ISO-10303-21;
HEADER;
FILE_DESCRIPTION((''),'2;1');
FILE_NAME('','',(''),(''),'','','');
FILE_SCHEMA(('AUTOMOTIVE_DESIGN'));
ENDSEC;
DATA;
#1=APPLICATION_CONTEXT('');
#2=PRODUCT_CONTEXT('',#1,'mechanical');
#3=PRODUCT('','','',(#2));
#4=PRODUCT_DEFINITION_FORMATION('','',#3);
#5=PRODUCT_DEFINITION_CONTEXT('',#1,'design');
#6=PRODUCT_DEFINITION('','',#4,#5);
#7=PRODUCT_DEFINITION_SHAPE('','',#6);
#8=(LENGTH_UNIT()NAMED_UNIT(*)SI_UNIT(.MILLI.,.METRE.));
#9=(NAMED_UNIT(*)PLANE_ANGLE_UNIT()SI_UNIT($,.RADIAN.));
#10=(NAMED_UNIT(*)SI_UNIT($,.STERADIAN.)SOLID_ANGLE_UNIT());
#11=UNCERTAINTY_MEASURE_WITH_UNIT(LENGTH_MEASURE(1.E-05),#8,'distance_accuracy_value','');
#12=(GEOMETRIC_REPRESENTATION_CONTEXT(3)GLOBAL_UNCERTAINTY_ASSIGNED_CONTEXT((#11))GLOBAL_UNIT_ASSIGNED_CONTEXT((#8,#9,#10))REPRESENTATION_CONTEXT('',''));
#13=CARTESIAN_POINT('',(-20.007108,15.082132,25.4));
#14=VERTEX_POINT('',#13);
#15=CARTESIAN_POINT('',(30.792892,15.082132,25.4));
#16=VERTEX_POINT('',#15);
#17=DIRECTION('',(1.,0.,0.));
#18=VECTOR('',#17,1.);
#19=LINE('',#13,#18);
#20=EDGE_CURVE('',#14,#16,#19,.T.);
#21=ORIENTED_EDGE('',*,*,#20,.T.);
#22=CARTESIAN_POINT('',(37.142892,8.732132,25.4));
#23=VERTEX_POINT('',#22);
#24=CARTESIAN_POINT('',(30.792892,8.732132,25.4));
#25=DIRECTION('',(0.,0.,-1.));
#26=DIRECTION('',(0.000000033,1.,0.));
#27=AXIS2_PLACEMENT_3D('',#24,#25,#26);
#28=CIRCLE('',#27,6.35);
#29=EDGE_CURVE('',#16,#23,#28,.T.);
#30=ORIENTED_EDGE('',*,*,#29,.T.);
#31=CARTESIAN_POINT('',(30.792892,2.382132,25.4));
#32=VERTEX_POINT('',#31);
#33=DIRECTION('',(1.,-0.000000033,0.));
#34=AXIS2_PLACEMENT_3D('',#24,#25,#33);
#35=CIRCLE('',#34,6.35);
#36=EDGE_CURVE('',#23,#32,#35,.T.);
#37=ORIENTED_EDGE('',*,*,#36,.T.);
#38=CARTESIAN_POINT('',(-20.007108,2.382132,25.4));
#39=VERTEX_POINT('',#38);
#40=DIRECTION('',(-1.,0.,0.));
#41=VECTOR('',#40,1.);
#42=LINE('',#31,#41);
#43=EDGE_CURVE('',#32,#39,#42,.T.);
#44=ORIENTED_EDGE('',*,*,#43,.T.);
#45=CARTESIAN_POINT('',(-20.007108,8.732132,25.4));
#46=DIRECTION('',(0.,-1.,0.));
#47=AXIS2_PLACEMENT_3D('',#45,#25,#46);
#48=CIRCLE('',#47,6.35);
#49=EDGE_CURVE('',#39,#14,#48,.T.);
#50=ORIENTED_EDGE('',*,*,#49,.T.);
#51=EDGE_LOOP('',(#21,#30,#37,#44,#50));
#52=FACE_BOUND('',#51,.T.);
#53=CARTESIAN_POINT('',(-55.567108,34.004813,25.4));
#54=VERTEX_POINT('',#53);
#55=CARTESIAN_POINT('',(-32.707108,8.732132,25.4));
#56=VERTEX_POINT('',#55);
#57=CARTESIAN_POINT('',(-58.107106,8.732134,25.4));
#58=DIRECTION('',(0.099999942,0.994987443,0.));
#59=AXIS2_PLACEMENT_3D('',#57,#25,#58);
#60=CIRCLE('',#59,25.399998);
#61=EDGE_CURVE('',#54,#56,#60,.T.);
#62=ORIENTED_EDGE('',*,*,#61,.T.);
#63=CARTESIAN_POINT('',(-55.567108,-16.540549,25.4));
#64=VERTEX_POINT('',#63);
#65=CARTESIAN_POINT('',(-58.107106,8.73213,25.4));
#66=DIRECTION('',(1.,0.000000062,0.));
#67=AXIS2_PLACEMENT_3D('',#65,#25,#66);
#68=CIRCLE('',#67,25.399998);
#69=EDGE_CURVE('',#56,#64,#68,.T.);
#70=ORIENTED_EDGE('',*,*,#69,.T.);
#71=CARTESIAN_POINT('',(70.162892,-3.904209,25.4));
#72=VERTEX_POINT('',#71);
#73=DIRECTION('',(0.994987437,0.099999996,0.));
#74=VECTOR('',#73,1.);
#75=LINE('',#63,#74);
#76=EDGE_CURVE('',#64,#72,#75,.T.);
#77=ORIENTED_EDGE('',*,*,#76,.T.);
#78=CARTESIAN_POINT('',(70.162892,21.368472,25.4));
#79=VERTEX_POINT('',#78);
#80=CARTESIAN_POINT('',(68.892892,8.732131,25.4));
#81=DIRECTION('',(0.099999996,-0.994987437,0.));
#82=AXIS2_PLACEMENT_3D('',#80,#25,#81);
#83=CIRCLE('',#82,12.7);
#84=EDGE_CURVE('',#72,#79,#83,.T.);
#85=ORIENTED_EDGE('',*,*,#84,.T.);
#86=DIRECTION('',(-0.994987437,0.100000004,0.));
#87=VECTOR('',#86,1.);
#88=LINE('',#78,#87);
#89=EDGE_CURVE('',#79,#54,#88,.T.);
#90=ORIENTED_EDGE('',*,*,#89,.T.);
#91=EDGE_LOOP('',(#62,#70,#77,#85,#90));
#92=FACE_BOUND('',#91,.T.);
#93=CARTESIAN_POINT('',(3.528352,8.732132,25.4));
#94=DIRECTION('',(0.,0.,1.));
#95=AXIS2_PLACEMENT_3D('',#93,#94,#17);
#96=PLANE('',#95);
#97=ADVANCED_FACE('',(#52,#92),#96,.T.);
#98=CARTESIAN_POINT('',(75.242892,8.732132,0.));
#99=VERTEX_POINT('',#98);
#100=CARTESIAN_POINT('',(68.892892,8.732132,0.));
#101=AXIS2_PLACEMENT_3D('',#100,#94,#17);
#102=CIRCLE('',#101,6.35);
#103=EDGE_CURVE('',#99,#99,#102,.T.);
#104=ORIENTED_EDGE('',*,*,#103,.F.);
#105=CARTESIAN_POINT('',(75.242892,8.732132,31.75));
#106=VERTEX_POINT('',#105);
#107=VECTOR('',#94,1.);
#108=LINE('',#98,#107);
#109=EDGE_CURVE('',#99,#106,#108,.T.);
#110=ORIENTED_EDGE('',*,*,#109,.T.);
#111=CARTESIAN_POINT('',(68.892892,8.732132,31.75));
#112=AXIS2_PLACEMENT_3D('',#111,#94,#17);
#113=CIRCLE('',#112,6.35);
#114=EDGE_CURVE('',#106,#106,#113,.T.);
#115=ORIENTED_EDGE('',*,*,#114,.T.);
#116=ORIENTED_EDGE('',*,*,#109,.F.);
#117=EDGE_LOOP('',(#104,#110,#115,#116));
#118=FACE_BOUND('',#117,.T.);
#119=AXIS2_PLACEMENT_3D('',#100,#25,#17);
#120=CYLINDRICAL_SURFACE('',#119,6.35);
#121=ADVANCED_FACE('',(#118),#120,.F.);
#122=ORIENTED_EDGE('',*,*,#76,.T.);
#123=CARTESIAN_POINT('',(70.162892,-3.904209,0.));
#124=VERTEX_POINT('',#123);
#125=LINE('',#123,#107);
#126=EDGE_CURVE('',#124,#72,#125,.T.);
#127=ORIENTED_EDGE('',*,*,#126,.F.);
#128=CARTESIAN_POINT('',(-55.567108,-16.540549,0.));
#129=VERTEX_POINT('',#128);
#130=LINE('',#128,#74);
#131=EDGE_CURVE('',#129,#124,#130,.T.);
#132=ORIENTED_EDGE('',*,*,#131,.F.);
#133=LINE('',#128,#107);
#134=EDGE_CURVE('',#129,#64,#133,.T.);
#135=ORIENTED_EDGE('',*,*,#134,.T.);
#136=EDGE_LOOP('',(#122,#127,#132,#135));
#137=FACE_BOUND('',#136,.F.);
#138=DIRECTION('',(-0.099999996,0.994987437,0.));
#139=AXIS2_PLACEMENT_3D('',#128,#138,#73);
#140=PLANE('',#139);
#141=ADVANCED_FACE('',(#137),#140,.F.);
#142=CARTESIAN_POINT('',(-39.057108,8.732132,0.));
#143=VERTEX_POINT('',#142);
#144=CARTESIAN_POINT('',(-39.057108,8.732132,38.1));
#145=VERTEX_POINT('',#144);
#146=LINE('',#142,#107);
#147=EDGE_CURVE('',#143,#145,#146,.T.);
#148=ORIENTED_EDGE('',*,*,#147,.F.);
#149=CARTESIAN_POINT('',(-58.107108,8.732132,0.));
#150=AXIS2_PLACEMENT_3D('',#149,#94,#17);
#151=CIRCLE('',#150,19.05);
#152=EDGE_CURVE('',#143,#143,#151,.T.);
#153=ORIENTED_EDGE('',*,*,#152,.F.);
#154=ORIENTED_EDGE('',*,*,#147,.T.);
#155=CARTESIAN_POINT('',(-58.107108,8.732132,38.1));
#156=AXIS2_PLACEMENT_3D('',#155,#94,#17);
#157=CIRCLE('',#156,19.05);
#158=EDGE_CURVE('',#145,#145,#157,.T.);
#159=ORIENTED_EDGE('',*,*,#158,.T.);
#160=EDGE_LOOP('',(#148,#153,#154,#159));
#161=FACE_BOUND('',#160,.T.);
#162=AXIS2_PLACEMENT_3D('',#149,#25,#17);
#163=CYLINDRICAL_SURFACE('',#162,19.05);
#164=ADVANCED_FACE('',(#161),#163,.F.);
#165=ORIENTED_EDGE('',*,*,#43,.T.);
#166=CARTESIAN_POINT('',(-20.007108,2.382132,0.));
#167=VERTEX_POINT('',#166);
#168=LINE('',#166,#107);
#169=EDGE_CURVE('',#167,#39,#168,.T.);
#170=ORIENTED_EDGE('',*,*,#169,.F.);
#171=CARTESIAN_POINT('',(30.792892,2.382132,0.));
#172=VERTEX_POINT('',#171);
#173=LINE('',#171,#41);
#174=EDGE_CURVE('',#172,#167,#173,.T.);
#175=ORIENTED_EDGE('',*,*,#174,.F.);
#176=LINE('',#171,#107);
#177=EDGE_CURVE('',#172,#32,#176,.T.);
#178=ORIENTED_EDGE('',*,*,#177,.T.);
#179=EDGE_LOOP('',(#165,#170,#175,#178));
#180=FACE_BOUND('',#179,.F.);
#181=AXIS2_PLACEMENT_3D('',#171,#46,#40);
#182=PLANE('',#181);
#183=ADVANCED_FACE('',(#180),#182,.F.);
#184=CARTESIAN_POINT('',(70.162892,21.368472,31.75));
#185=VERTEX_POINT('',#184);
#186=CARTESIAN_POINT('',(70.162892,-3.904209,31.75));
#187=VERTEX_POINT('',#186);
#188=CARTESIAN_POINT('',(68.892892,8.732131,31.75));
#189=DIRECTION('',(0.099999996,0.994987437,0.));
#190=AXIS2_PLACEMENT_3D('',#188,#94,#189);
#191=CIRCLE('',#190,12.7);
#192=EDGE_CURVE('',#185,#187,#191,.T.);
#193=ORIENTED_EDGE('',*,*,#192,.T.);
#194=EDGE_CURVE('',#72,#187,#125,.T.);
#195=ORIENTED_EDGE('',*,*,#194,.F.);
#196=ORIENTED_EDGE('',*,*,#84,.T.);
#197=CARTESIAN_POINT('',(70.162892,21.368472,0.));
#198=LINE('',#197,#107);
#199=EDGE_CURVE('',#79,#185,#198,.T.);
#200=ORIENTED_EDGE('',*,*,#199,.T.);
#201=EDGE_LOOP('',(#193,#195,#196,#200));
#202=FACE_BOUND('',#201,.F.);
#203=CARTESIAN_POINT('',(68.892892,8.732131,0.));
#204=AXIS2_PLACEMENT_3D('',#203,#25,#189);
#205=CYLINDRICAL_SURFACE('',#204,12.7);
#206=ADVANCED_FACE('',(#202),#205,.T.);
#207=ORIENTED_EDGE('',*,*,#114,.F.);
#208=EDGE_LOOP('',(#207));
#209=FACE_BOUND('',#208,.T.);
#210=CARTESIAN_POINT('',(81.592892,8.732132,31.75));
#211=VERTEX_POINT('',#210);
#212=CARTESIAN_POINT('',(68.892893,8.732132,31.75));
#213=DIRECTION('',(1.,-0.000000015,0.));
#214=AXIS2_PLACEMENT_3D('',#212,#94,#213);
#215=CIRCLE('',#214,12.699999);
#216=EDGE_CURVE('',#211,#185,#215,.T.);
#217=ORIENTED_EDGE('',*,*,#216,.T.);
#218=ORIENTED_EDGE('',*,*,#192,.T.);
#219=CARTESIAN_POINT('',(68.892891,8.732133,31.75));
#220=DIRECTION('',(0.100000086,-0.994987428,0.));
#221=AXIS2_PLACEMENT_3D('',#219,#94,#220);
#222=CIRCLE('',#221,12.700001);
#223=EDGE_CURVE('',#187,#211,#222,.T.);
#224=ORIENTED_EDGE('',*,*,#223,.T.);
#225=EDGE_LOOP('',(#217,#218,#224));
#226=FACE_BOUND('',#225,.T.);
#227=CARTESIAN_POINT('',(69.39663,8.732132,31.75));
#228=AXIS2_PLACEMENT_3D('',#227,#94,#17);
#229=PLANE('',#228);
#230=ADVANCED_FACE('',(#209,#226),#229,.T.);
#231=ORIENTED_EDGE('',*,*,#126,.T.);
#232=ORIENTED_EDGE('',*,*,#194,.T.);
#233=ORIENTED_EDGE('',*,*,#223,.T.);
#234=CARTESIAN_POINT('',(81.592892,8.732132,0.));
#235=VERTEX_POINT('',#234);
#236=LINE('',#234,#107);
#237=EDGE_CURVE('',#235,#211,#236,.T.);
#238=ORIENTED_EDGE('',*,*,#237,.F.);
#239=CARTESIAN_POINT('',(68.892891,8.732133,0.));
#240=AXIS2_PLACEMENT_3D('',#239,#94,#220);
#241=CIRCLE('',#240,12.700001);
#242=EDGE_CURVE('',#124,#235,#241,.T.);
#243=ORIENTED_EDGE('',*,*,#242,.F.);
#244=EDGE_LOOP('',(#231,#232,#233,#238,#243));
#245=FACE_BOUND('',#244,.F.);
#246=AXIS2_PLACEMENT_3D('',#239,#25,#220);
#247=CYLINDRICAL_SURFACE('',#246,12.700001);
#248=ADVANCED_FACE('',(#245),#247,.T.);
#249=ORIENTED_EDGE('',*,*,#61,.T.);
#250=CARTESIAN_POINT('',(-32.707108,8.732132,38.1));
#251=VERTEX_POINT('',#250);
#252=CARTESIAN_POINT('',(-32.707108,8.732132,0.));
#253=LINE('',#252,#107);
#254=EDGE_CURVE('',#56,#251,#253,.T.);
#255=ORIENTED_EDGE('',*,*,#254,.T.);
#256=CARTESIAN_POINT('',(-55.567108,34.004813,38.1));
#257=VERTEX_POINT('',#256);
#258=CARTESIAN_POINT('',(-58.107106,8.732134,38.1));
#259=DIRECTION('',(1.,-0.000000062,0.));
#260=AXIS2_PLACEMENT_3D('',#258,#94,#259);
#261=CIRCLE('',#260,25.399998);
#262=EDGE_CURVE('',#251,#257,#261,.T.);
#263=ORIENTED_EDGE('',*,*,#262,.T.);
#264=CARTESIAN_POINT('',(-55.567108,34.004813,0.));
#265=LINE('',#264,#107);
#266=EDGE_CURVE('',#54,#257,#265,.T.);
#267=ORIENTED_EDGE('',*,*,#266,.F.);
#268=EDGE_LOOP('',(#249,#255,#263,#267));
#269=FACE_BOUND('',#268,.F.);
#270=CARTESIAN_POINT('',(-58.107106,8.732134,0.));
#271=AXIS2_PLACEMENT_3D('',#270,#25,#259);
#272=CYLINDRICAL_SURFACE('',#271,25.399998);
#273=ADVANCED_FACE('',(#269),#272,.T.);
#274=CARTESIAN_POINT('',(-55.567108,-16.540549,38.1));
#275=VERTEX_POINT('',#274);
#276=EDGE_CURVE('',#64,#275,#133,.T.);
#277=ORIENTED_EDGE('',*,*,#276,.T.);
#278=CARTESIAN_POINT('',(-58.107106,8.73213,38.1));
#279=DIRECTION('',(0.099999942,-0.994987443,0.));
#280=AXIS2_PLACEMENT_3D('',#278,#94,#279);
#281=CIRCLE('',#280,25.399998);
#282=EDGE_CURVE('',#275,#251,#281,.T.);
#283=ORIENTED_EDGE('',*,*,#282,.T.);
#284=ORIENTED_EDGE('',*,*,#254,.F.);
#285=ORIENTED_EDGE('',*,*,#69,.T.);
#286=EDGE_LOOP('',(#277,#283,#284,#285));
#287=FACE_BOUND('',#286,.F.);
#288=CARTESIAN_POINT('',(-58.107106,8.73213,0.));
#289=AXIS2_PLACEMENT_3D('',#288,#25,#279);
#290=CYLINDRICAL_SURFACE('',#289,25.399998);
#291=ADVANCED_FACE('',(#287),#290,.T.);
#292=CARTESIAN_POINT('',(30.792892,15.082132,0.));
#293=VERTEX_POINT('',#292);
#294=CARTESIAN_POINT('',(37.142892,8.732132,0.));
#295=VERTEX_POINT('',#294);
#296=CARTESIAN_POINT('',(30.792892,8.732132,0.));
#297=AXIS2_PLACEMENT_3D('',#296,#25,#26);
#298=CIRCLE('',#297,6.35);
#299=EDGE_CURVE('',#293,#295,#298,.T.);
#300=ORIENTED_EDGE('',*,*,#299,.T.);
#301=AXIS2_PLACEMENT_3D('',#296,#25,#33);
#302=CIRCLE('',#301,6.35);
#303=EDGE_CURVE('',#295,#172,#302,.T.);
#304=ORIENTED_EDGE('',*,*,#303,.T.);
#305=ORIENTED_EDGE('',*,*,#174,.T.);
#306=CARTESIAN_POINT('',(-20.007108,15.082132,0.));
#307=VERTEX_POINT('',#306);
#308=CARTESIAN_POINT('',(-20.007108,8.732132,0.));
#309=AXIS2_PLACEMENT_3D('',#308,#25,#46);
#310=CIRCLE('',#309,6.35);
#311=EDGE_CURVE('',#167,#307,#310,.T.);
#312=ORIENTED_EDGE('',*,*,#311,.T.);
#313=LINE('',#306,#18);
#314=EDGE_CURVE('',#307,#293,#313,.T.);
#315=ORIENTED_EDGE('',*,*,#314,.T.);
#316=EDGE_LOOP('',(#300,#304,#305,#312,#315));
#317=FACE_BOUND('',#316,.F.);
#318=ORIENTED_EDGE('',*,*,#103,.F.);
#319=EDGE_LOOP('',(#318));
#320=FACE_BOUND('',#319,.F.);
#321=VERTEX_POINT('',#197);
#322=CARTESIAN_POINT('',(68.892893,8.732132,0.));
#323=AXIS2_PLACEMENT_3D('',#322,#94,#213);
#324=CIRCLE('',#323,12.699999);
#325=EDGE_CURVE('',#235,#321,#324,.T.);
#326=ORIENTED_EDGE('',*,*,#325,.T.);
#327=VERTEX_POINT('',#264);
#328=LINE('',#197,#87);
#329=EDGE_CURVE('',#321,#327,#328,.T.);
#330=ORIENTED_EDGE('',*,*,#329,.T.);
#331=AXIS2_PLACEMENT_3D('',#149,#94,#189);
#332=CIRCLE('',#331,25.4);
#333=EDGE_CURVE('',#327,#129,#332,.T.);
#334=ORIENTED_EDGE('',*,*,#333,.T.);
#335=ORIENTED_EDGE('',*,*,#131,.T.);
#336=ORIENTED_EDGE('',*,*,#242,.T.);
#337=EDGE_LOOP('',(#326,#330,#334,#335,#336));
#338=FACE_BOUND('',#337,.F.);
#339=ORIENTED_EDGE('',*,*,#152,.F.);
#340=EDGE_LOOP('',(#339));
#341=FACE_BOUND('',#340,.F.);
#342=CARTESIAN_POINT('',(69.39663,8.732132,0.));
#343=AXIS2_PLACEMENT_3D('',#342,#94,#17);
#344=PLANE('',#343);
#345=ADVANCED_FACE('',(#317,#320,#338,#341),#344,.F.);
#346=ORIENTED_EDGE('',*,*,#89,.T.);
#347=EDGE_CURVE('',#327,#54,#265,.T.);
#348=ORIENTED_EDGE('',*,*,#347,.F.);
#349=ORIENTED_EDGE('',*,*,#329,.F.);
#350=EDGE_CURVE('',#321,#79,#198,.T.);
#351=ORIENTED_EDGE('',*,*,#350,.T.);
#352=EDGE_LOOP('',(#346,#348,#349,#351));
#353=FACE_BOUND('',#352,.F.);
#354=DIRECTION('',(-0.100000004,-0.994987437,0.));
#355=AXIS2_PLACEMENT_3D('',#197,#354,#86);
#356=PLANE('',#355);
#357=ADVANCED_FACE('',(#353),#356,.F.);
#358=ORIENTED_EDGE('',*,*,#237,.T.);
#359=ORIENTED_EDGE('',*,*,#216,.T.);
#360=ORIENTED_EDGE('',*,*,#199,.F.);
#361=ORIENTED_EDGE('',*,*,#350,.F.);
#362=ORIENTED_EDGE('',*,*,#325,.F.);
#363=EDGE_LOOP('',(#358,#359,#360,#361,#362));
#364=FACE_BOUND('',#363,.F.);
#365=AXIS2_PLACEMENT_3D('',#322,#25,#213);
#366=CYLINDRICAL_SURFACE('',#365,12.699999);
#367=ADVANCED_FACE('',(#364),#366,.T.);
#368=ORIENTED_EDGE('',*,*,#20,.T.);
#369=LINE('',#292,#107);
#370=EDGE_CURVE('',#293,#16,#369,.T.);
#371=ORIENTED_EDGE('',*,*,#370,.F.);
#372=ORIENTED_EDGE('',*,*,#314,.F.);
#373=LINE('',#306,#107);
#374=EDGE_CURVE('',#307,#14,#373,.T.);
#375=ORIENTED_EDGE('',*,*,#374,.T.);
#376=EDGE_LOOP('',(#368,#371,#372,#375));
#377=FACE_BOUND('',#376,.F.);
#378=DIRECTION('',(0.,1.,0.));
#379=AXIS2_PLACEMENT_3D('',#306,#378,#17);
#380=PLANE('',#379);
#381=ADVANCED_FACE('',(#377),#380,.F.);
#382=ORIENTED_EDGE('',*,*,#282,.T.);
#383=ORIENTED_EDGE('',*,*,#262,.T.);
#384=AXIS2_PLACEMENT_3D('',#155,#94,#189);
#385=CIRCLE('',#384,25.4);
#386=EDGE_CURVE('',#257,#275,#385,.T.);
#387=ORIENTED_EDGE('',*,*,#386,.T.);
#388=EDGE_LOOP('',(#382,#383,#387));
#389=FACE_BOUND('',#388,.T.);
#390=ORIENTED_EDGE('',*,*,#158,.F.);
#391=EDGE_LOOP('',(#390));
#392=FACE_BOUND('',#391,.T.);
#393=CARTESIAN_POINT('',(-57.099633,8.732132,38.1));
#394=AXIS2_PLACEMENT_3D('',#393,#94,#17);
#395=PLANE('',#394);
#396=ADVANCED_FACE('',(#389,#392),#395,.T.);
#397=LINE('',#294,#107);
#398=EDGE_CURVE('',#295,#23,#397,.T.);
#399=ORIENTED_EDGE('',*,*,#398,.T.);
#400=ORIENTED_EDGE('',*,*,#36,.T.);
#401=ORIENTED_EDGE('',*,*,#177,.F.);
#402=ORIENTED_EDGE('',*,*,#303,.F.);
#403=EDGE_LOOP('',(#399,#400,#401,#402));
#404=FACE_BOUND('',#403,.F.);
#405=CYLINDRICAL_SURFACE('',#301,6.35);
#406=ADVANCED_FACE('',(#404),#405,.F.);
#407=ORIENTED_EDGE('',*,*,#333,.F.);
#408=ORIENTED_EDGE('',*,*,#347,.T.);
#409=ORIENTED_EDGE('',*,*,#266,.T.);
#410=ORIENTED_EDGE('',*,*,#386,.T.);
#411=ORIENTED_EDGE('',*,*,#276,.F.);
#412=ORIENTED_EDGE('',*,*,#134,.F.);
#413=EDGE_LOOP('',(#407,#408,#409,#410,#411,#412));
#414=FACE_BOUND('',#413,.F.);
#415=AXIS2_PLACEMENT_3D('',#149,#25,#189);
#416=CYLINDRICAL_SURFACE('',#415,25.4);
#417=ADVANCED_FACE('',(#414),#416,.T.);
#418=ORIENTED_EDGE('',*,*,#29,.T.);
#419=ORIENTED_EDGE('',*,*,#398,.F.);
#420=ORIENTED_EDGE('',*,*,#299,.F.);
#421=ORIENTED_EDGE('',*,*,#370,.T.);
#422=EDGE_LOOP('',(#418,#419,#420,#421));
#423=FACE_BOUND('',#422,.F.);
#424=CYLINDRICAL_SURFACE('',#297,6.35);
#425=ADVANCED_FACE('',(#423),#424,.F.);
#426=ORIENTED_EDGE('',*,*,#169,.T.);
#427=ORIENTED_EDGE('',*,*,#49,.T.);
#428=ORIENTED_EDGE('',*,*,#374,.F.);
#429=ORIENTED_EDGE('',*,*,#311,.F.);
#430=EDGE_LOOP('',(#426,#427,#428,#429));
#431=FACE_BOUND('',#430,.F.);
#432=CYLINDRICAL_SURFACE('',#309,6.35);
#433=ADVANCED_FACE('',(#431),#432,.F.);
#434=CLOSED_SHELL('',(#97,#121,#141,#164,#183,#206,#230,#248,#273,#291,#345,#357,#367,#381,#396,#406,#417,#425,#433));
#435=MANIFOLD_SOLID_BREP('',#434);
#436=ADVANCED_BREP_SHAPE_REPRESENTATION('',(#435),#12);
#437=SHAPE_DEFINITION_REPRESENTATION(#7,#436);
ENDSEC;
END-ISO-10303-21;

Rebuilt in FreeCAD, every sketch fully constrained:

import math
import FreeCAD as App
import Part
import Sketcher
Q = App.Units.Quantity

doc = App.newDocument("Part")
body = doc.addObject("PartDesign::Body", "Body")

sketch1 = body.newObject("Sketcher::SketchObject", "Sketch")
sketch1.AttachmentSupport = (doc.getObject("XY_Plane"), [""])
sketch1.MapMode = "FlatFace"
sketch1.addGeometry([
    Part.ArcOfCircle(Part.Circle(App.Vector(-58, 9, 0), App.Vector(0, 0, 1), 25), math.radians(0), math.radians(84)),
    Part.ArcOfCircle(Part.Circle(App.Vector(-58, 9, 0), App.Vector(0, 0, 1), 25), math.radians(-84), math.radians(0)),
    Part.LineSegment(App.Vector(-56, -17, 0), App.Vector(70, -4, 0)),
    Part.ArcOfCircle(Part.Circle(App.Vector(69, 9, 0), App.Vector(0, 0, 1), 13), math.radians(84), math.radians(276)),
    Part.LineSegment(App.Vector(70, 21, 0), App.Vector(-56, 34, 0)),
    Part.LineSegment(App.Vector(31, 2, 0), App.Vector(-20, 2, 0)),
    Part.ArcOfCircle(Part.Circle(App.Vector(-20, 9, 0), App.Vector(0, 0, 1), 6), math.radians(90), math.radians(270)),
    Part.LineSegment(App.Vector(-20, 15, 0), App.Vector(31, 15, 0)),
    Part.ArcOfCircle(Part.Circle(App.Vector(31, 9, 0), App.Vector(0, 0, 1), 6), math.radians(0), math.radians(90)),
    Part.ArcOfCircle(Part.Circle(App.Vector(31, 9, 0), App.Vector(0, 0, 1), 6), math.radians(-90), math.radians(0)),
], False)
sketch1.addConstraint([
    Sketcher.Constraint("Tangent", 0, 1, 1, 2),
    Sketcher.Constraint("Tangent", 1, 1, 2, 1),
    Sketcher.Constraint("Tangent", 2, 2, 3, 2),
    Sketcher.Constraint("Tangent", 3, 1, 4, 1),
    Sketcher.Constraint("Tangent", 4, 2, 0, 2),
    Sketcher.Constraint("Tangent", 5, 2, 6, 2),
    Sketcher.Constraint("Tangent", 6, 1, 7, 1),
    Sketcher.Constraint("Tangent", 7, 2, 8, 2),
    Sketcher.Constraint("Tangent", 8, 1, 9, 2),
    Sketcher.Constraint("Tangent", 9, 1, 5, 1),
    Sketcher.Constraint("Horizontal", 5),
    Sketcher.Constraint("Horizontal", 7),
    Sketcher.Constraint("Equal", 0, 1),
    Sketcher.Constraint("Equal", 6, 8),
    Sketcher.Constraint("Horizontal", 1, 3, 3, 3),
    Sketcher.Constraint("Horizontal", 3, 3, 6, 3),
    Sketcher.Constraint("Horizontal", 9, 3, 0, 1),
    Sketcher.Constraint("Horizontal", 0, 1, 8, 1),
    Sketcher.Constraint("Radius", 0, Q("0.9999999 in")),
    Sketcher.Constraint("Radius", 3, Q("0.5 in")),
    Sketcher.Constraint("DistanceX", 5, 2, 5, 1, Q("2 in")),
    Sketcher.Constraint("Radius", 6, Q("0.25 in")),
    Sketcher.Constraint("DistanceX", 1, 3, 3, 3, Q("4.9999999 in")),
    Sketcher.Constraint("DistanceX", 0, 3, 6, 3, Q("1.4999999 in")),
    Sketcher.Constraint("DistanceY", -1, 1, 1, 3, 8.73213),
    Sketcher.Constraint("DistanceX", -1, 1, 8, 3, 30.792892),
])
pad1 = body.newObject("PartDesign::Pad", "Pad")
pad1.Profile = sketch1
pad1.Length = Q("1 in")

sketch2 = body.newObject("Sketcher::SketchObject", "Sketch001")
sketch2.AttachmentSupport = (doc.getObject("XY_Plane"), [""])
sketch2.MapMode = "FlatFace"
sketch2.addGeometry([
    Part.ArcOfCircle(Part.Circle(App.Vector(-58, 9, 0), App.Vector(0, 0, 1), 25), math.radians(-84), math.radians(0)),
    Part.ArcOfCircle(Part.Circle(App.Vector(-58, 9, 0), App.Vector(0, 0, 1), 25), math.radians(0), math.radians(84)),
    Part.ArcOfCircle(Part.Circle(App.Vector(-58, 9, 0), App.Vector(0, 0, 1), 25), math.radians(84), math.radians(276)),
    Part.Circle(App.Vector(-58, 9, 0), App.Vector(0, 0, 1), 19),
], False)
sketch2.addConstraint([
    Sketcher.Constraint("Tangent", 0, 2, 1, 1),
    Sketcher.Constraint("Tangent", 1, 2, 2, 1),
    Sketcher.Constraint("Tangent", 2, 2, 0, 1),
    Sketcher.Constraint("Coincident", 3, 3, 0, 3),
    Sketcher.Constraint("Horizontal", 3, 3, 0, 2),
    Sketcher.Constraint("Vertical", 1, 2, 2, 2),
    Sketcher.Constraint("Radius", 0, Q("0.9999999 in")),
    Sketcher.Constraint("Diameter", 3, Q("1.5 in")),
    Sketcher.Constraint("DistanceX", 1, 3, 1, 2, Q("0.0999999 in")),
    Sketcher.Constraint("DistanceY", -1, 1, 0, 3, 8.73213),
    Sketcher.Constraint("DistanceX", 0, 2, -1, 1, 32.707108),
])
pad2 = body.newObject("PartDesign::Pad", "Pad001")
pad2.Profile = sketch2
pad2.Length = Q("1.5 in")

sketch3 = body.newObject("Sketcher::SketchObject", "Sketch002")
sketch3.AttachmentSupport = (doc.getObject("XY_Plane"), [""])
sketch3.MapMode = "FlatFace"
sketch3.addGeometry([
    Part.ArcOfCircle(Part.Circle(App.Vector(69, 9, 0), App.Vector(0, 0, 1), 13), math.radians(0), math.radians(84)),
    Part.ArcOfCircle(Part.Circle(App.Vector(69, 9, 0), App.Vector(0, 0, 1), 13), math.radians(84), math.radians(276)),
    Part.ArcOfCircle(Part.Circle(App.Vector(69, 9, 0), App.Vector(0, 0, 1), 13), math.radians(-84), math.radians(0)),
    Part.Circle(App.Vector(69, 9, 0), App.Vector(0, 0, 1), 6),
], False)
sketch3.addConstraint([
    Sketcher.Constraint("Tangent", 0, 2, 1, 1),
    Sketcher.Constraint("Tangent", 1, 2, 2, 1),
    Sketcher.Constraint("Tangent", 2, 2, 0, 1),
    Sketcher.Constraint("Coincident", 3, 3, 0, 3),
    Sketcher.Constraint("Horizontal", 3, 3, 2, 2),
    Sketcher.Constraint("Vertical", 0, 2, 1, 2),
    Sketcher.Constraint("Diameter", 3, Q("0.5 in")),
    Sketcher.Constraint("Radius", 0, Q("0.5 in")),
    Sketcher.Constraint("DistanceX", 2, 3, 0, 2, Q("0.05 in")),
    Sketcher.Constraint("DistanceY", -1, 1, 1, 3, 8.732131),
    Sketcher.Constraint("DistanceX", -1, 1, 2, 3, 68.892891),
])
pad3 = body.newObject("PartDesign::Pad", "Pad002")
pad3.Profile = sketch3
pad3.Length = Q("1.25 in")

doc.recompute()
